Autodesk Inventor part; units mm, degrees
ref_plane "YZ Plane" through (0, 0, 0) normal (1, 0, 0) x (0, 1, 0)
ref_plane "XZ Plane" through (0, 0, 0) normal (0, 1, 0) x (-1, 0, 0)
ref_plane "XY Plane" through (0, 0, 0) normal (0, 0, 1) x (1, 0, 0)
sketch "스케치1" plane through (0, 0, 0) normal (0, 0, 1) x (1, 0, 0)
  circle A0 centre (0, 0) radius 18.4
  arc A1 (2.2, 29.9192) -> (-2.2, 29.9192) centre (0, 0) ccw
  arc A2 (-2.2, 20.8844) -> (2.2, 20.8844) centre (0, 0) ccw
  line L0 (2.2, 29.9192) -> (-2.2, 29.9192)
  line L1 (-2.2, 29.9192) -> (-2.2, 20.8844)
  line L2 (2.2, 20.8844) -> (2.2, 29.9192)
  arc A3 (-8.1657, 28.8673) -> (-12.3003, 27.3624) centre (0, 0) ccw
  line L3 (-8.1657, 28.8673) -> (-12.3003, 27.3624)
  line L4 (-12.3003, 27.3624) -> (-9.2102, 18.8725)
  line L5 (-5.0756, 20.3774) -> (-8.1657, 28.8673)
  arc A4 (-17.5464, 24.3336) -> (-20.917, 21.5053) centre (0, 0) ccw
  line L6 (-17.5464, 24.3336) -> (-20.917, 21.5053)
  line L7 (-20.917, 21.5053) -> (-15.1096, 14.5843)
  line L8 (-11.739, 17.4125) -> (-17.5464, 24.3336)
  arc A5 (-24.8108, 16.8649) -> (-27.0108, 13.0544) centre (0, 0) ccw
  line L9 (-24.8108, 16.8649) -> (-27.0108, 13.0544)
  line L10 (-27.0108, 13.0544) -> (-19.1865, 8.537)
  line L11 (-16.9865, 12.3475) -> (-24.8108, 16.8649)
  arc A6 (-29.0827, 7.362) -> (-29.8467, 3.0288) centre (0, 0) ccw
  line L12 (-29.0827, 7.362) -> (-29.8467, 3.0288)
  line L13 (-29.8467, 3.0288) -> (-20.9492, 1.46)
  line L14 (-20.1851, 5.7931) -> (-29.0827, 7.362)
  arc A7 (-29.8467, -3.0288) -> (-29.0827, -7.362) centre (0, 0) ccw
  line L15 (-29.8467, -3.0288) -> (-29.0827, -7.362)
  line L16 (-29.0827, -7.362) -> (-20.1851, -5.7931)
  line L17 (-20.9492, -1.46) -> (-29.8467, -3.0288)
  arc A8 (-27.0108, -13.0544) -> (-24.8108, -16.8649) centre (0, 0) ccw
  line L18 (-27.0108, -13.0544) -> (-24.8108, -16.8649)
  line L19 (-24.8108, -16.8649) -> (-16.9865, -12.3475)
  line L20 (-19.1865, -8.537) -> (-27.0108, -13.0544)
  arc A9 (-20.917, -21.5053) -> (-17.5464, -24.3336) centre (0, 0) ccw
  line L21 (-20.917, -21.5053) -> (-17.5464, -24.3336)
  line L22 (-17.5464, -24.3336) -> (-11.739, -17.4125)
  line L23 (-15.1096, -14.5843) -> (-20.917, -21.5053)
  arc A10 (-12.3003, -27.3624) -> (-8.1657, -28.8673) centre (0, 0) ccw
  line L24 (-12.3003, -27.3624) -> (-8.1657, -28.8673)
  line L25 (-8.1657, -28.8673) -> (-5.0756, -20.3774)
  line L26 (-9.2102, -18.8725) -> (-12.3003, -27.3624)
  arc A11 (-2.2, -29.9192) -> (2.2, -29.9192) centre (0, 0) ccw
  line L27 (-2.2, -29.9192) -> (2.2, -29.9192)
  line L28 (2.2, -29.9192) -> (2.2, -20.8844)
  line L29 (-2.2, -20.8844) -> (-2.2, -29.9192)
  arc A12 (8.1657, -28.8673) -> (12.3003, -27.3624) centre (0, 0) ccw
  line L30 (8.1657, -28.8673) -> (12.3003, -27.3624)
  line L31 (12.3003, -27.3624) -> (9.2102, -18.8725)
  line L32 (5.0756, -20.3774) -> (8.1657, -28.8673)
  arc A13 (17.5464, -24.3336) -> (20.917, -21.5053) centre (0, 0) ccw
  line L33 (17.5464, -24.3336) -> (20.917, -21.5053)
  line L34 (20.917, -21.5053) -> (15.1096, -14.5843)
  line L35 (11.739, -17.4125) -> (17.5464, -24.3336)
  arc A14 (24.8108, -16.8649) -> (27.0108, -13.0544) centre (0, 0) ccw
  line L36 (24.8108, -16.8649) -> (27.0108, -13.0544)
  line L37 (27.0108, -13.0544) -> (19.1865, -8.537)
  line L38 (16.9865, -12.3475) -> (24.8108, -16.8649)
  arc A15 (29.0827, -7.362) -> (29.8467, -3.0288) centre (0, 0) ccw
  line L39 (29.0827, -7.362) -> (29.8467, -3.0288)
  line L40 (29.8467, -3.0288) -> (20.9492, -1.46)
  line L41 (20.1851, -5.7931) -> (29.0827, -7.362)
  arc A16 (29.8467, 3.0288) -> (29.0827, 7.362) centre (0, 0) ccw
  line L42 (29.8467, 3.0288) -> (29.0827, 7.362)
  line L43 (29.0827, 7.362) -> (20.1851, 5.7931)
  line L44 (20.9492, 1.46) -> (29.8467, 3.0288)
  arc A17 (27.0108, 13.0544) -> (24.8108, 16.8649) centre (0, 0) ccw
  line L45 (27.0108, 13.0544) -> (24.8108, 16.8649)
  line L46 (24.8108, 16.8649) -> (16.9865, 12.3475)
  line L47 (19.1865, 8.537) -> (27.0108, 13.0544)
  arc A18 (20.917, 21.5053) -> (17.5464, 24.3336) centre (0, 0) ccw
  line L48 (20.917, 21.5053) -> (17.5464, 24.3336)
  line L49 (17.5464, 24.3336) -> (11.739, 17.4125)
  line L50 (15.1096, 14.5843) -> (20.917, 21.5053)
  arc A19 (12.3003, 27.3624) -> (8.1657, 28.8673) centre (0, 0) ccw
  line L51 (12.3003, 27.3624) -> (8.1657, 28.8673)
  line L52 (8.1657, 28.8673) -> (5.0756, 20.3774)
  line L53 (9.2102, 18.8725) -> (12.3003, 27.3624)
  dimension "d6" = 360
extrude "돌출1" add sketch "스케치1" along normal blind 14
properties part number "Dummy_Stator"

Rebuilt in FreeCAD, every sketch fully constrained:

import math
import FreeCAD as App
import Part
import Sketcher

V = App.Vector

doc = App.newDocument("Part")
body = doc.addObject("PartDesign::Body", "Body")

sketch1 = body.newObject("Sketcher::SketchObject", "Sketch")
sketch1.AttachmentSupport = (doc.getObject("XY_Plane"), [""])
sketch1.MapMode = "FlatFace"
sketch1.addGeometry([
    Part.ArcOfCircle(Part.Circle(V(0, 0, 0), V(0, 0, 1), 29.999975), math.radians(85.794531), math.radians(94.205469)),
    Part.LineSegment(V(-2.2, 29.9192, 0), V(-2.2, 20.8844, 0)),
    Part.ArcOfCircle(Part.Circle(V(0, 0, 0), V(0, 0, 1), 20.999956), math.radians(96.013462), math.radians(103.986614)),
    Part.LineSegment(V(-5.0756, 20.3774, 0), V(-8.1657, 28.8673, 0)),
    Part.ArcOfCircle(Part.Circle(V(-0.001287, 0.003984, 0), V(0, 0, 1), 29.995811), math.radians(105.794336), math.radians(114.206366)),
    Part.LineSegment(V(-12.3003, 27.3624, 0), V(-9.2102, 18.8725, 0)),
    Part.ArcOfCircle(Part.Circle(V(0, 0, 0), V(0, 0, 1), 20.999956), math.radians(116.013406), math.radians(123.986701)),
    Part.LineSegment(V(-11.739, 17.4125, 0), V(-17.5464, 24.3336, 0)),
    Part.ArcOfCircle(Part.Circle(V(-0.00271, 0.003482, 0), V(0, 0, 1), 29.995595), math.radians(125.794198), math.radians(134.206416)),
    Part.LineSegment(V(-20.917, 21.5053, 0), V(-15.1096, 14.5843, 0)),
    Part.ArcOfCircle(Part.Circle(V(0, 0, 0), V(0, 0, 1), 20.999956), math.radians(136.013485), math.radians(143.986568)),
    Part.LineSegment(V(-16.9865, 12.3475, 0), V(-24.8108, 16.8649, 0)),
    Part.ArcOfCircle(Part.Circle(V(0, 0, 0), V(0, 0, 1), 30.000041), math.radians(145.794475), math.radians(154.205384)),
    Part.LineSegment(V(-27.0108, 13.0544, 0), V(-19.1865, 8.537, 0)),
    Part.ArcOfCircle(Part.Circle(V(0, 0, 0), V(0, 0, 1), 20.999956), math.radians(156.01341), math.radians(163.986583)),
    Part.LineSegment(V(-20.1851, 5.7931, 0), V(-29.0827, 7.362, 0)),
    Part.ArcOfCircle(Part.Circle(V(-0.01015, 0.002176, 0), V(0, 0, 1), 29.989668), math.radians(165.793819), math.radians(174.207722)),
    Part.LineSegment(V(-29.8467, 3.0288, 0), V(-20.9492, 1.46, 0)),
    Part.ArcOfCircle(Part.Circle(V(0, 0, 0), V(0, 0, 1), 20.999956), math.radians(176.013366), math.radians(183.986634)),
    Part.LineSegment(V(-20.9492, -1.46, 0), V(-29.8467, -3.0288, 0)),
    Part.ArcOfCircle(Part.Circle(V(0.010289, 0.001427, 0), V(0, 0, 1), 30.010366), math.radians(-174.204815), math.radians(-165.796725)),
    Part.LineSegment(V(-29.0827, -7.362, 0), V(-20.1851, -5.7931, 0)),
    Part.ArcOfCircle(Part.Circle(V(0, 0, 0), V(0, 0, 1), 20.999956), math.radians(-163.986583), math.radians(-156.01341)),
    Part.LineSegment(V(-19.1865, -8.537, 0), V(-27.0108, -13.0544, 0)),
    Part.ArcOfCircle(Part.Circle(V(0, 0, 0), V(0, 0, 1), 29.999972), math.radians(-154.205384), math.radians(-145.794475)),
    Part.LineSegment(V(-24.8108, -16.8649, 0), V(-16.9865, -12.3475, 0)),
    Part.ArcOfCircle(Part.Circle(V(0, 0, 0), V(0, 0, 1), 20.999956), math.radians(-143.986568), math.radians(-136.013485)),
    Part.LineSegment(V(-15.1096, -14.5843, 0), V(-20.917, -21.5053, 0)),
    Part.ArcOfCircle(Part.Circle(V(0.002959, 0.003275, 0), V(0, 0, 1), 30.004391), math.radians(-134.205181), math.radians(-125.795433)),
    Part.LineSegment(V(-17.5464, -24.3336, 0), V(-11.739, -17.4125, 0)),
    Part.ArcOfCircle(Part.Circle(V(0, 0, 0), V(0, 0, 1), 20.999956), math.radians(-123.986701), math.radians(-116.013406)),
    Part.LineSegment(V(-9.2102, -18.8725, 0), V(-12.3003, -27.3624, 0)),
    Part.ArcOfCircle(Part.Circle(V(0.001576, 0.00388, 0), V(0, 0, 1), 30.004157), math.radians(-114.205194), math.radians(-105.795508)),
    Part.LineSegment(V(-8.1657, -28.8673, 0), V(-5.0756, -20.3774, 0)),
    Part.ArcOfCircle(Part.Circle(V(0, 0, 0), V(0, 0, 1), 20.999956), math.radians(-103.986614), math.radians(-96.013462)),
    Part.LineSegment(V(-2.2, -20.8844, 0), V(-2.2, -29.9192, 0)),
    Part.ArcOfCircle(Part.Circle(V(0, 0, 0), V(0, 0, 1), 29.999975), math.radians(-94.205469), math.radians(-85.794531)),
    Part.LineSegment(V(2.2, -29.9192, 0), V(2.2, -20.8844, 0)),
    Part.ArcOfCircle(Part.Circle(V(0, 0, 0), V(0, 0, 1), 20.999956), math.radians(-83.986538), math.radians(-76.013386)),
    Part.LineSegment(V(5.0756, -20.3774, 0), V(8.1657, -28.8673, 0)),
    Part.ArcOfCircle(Part.Circle(V(0.001287, -0.003984, 0), V(0, 0, 1), 29.995811), math.radians(-74.205664), math.radians(-65.793634)),
    Part.LineSegment(V(12.3003, -27.3624, 0), V(9.2102, -18.8725, 0)),
    Part.ArcOfCircle(Part.Circle(V(0, 0, 0), V(0, 0, 1), 20.999956), math.radians(-63.986594), math.radians(-56.013299)),
    Part.LineSegment(V(11.739, -17.4125, 0), V(17.5464, -24.3336, 0)),
    Part.ArcOfCircle(Part.Circle(V(0.00271, -0.003482, 0), V(0, 0, 1), 29.995595), math.radians(-54.205802), math.radians(-45.793584)),
    Part.LineSegment(V(20.917, -21.5053, 0), V(15.1096, -14.5843, 0)),
    Part.ArcOfCircle(Part.Circle(V(0, 0, 0), V(0, 0, 1), 20.999956), math.radians(-43.986515), math.radians(-36.013432)),
    Part.LineSegment(V(16.9865, -12.3475, 0), V(24.8108, -16.8649, 0)),
    Part.ArcOfCircle(Part.Circle(V(0, 0, 0), V(0, 0, 1), 30.000041), math.radians(-34.205525), math.radians(-25.794616)),
    Part.LineSegment(V(27.0108, -13.0544, 0), V(19.1865, -8.537, 0)),
    Part.ArcOfCircle(Part.Circle(V(0, 0, 0), V(0, 0, 1), 20.999956), math.radians(-23.98659), math.radians(-16.013417)),
    Part.LineSegment(V(20.1851, -5.7931, 0), V(29.0827, -7.362, 0)),
    Part.ArcOfCircle(Part.Circle(V(0.01015, -0.002176, 0), V(0, 0, 1), 29.989668), math.radians(-14.206181), math.radians(-5.792278)),
    Part.LineSegment(V(29.8467, -3.0288, 0), V(20.9492, -1.46, 0)),
    Part.ArcOfCircle(Part.Circle(V(0, 0, 0), V(0, 0, 1), 20.999956), math.radians(-3.986634), math.radians(3.986634)),
    Part.LineSegment(V(20.9492, 1.46, 0), V(29.8467, 3.0288, 0)),
    Part.ArcOfCircle(Part.Circle(V(-0.010289, -0.001427, 0), V(0, 0, 1), 30.010366), math.radians(5.795185), math.radians(14.203275)),
    Part.LineSegment(V(29.0827, 7.362, 0), V(20.1851, 5.7931, 0)),
    Part.ArcOfCircle(Part.Circle(V(0, 0, 0), V(0, 0, 1), 20.999956), math.radians(16.013417), math.radians(23.98659)),
    Part.LineSegment(V(19.1865, 8.537, 0), V(27.0108, 13.0544, 0)),
    Part.ArcOfCircle(Part.Circle(V(0, 0, 0), V(0, 0, 1), 29.999972), math.radians(25.794616), math.radians(34.205525)),
    Part.LineSegment(V(24.8108, 16.8649, 0), V(16.9865, 12.3475, 0)),
    Part.ArcOfCircle(Part.Circle(V(0, 0, 0), V(0, 0, 1), 20.999956), math.radians(36.013432), math.radians(43.986515)),
    Part.LineSegment(V(15.1096, 14.5843, 0), V(20.917, 21.5053, 0)),
    Part.ArcOfCircle(Part.Circle(V(-0.002959, -0.003275, 0), V(0, 0, 1), 30.004391), math.radians(45.794819), math.radians(54.204567)),
    Part.LineSegment(V(17.5464, 24.3336, 0), V(11.739, 17.4125, 0)),
    Part.ArcOfCircle(Part.Circle(V(0, 0, 0), V(0, 0, 1), 20.999956), math.radians(56.013299), math.radians(63.986594)),
    Part.LineSegment(V(9.2102, 18.8725, 0), V(12.3003, 27.3624, 0)),
    Part.ArcOfCircle(Part.Circle(V(-0.001576, -0.00388, 0), V(0, 0, 1), 30.004157), math.radians(65.794806), math.radians(74.204492)),
    Part.LineSegment(V(8.1657, 28.8673, 0), V(5.0756, 20.3774, 0)),
    Part.ArcOfCircle(Part.Circle(V(0, 0, 0), V(0, 0, 1), 20.999956), math.radians(76.013386), math.radians(83.986538)),
    Part.LineSegment(V(2.2, 20.8844, 0), V(2.2, 29.9192, 0)),
    Part.Circle(V(0, 0, 0), V(0, 0, 1), 18.4),
], False)
sketch1.addConstraint([
    Sketcher.Constraint("Coincident", 0, 2, 1, 1),
    Sketcher.Constraint("Coincident", 1, 2, 2, 1),
    Sketcher.Constraint("Coincident", 2, 2, 3, 1),
    Sketcher.Constraint("Coincident", 3, 2, 4, 1),
    Sketcher.Constraint("Coincident", 4, 2, 5, 1),
    Sketcher.Constraint("Coincident", 5, 2, 6, 1),
    Sketcher.Constraint("Coincident", 6, 2, 7, 1),
    Sketcher.Constraint("Coincident", 7, 2, 8, 1),
    Sketcher.Constraint("Coincident", 8, 2, 9, 1),
    Sketcher.Constraint("Coincident", 9, 2, 10, 1),
    Sketcher.Constraint("Coincident", 10, 2, 11, 1),
    Sketcher.Constraint("Coincident", 11, 2, 12, 1),
    Sketcher.Constraint("Coincident", 12, 2, 13, 1),
    Sketcher.Constraint("Coincident", 13, 2, 14, 1),
    Sketcher.Constraint("Coincident", 14, 2, 15, 1),
    Sketcher.Constraint("Coincident", 15, 2, 16, 1),
    Sketcher.Constraint("Coincident", 16, 2, 17, 1),
    Sketcher.Constraint("Coincident", 17, 2, 18, 1),
    Sketcher.Constraint("Coincident", 18, 2, 19, 1),
    Sketcher.Constraint("Coincident", 19, 2, 20, 1),
    Sketcher.Constraint("Coincident", 20, 2, 21, 1),
    Sketcher.Constraint("Coincident", 21, 2, 22, 1),
    Sketcher.Constraint("Coincident", 22, 2, 23, 1),
    Sketcher.Constraint("Coincident", 23, 2, 24, 1),
    Sketcher.Constraint("Coincident", 24, 2, 25, 1),
    Sketcher.Constraint("Coincident", 25, 2, 26, 1),
    Sketcher.Constraint("Coincident", 26, 2, 27, 1),
    Sketcher.Constraint("Coincident", 27, 2, 28, 1),
    Sketcher.Constraint("Coincident", 28, 2, 29, 1),
    Sketcher.Constraint("Coincident", 29, 2, 30, 1),
    Sketcher.Constraint("Coincident", 30, 2, 31, 1),
    Sketcher.Constraint("Coincident", 31, 2, 32, 1),
    Sketcher.Constraint("Coincident", 32, 2, 33, 1),
    Sketcher.Constraint("Coincident", 33, 2, 34, 1),
    Sketcher.Constraint("Coincident", 34, 2, 35, 1),
    Sketcher.Constraint("Coincident", 35, 2, 36, 1),
    Sketcher.Constraint("Coincident", 36, 2, 37, 1),
    Sketcher.Constraint("Coincident", 37, 2, 38, 1),
    Sketcher.Constraint("Coincident", 38, 2, 39, 1),
    Sketcher.Constraint("Coincident", 39, 2, 40, 1),
    Sketcher.Constraint("Coincident", 40, 2, 41, 1),
    Sketcher.Constraint("Coincident", 41, 2, 42, 1),
    Sketcher.Constraint("Coincident", 42, 2, 43, 1),
    Sketcher.Constraint("Coincident", 43, 2, 44, 1),
    Sketcher.Constraint("Coincident", 44, 2, 45, 1),
    Sketcher.Constraint("Coincident", 45, 2, 46, 1),
    Sketcher.Constraint("Coincident", 46, 2, 47, 1),
    Sketcher.Constraint("Coincident", 47, 2, 48, 1),
    Sketcher.Constraint("Coincident", 48, 2, 49, 1),
    Sketcher.Constraint("Coincident", 49, 2, 50, 1),
    Sketcher.Constraint("Coincident", 50, 2, 51, 1),
    Sketcher.Constraint("Coincident", 51, 2, 52, 1),
    Sketcher.Constraint("Coincident", 52, 2, 53, 1),
    Sketcher.Constraint("Coincident", 53, 2, 54, 1),
    Sketcher.Constraint("Coincident", 54, 2, 55, 1),
    Sketcher.Constraint("Coincident", 55, 2, 56, 1),
    Sketcher.Constraint("Coincident", 56, 2, 57, 1),
    Sketcher.Constraint("Coincident", 57, 2, 58, 1),
    Sketcher.Constraint("Coincident", 58, 2, 59, 1),
    Sketcher.Constraint("Coincident", 59, 2, 60, 1),
    Sketcher.Constraint("Coincident", 60, 2, 61, 1),
    Sketcher.Constraint("Coincident", 61, 2, 62, 1),
    Sketcher.Constraint("Coincident", 62, 2, 63, 1),
    Sketcher.Constraint("Coincident", 63, 2, 64, 1),
    Sketcher.Constraint("Coincident", 64, 2, 65, 1),
    Sketcher.Constraint("Coincident", 65, 2, 66, 1),
    Sketcher.Constraint("Coincident", 66, 2, 67, 1),
    Sketcher.Constraint("Coincident", 67, 2, 68, 1),
    Sketcher.Constraint("Coincident", 68, 2, 69, 1),
    Sketcher.Constraint("Coincident", 69, 2, 70, 1),
    Sketcher.Constraint("Coincident", 70, 2, 71, 1),
    Sketcher.Constraint("Coincident", 71, 2, 0, 1),
    Sketcher.Constraint("Vertical", 1),
    Sketcher.Constraint("Vertical", 35),
    Sketcher.Constraint("Vertical", 37),
    Sketcher.Constraint("Vertical", 71),
    Sketcher.Constraint("Coincident", 0, 3, -1, 1),
    Sketcher.Constraint("Coincident", 2, 3, -1, 1),
    Sketcher.Constraint("Coincident", 6, 3, -1, 1),
    Sketcher.Constraint("Coincident", 10, 3, -1, 1),
    Sketcher.Constraint("Coincident", 12, 3, -1, 1),
    Sketcher.Constraint("Coincident", 14, 3, -1, 1),
    Sketcher.Constraint("Coincident", 18, 3, -1, 1),
    Sketcher.Constraint("Coincident", 22, 3, -1, 1),
    Sketcher.Constraint("Coincident", 24, 3, -1, 1),
    Sketcher.Constraint("Coincident", 26, 3, -1, 1),
    Sketcher.Constraint("Coincident", 30, 3, -1, 1),
    Sketcher.Constraint("Coincident", 34, 3, -1, 1),
    Sketcher.Constraint("Coincident", 36, 3, -1, 1),
    Sketcher.Constraint("Coincident", 38, 3, -1, 1),
    Sketcher.Constraint("Coincident", 42, 3, -1, 1),
    Sketcher.Constraint("Coincident", 46, 3, -1, 1),
    Sketcher.Constraint("Coincident", 48, 3, -1, 1),
    Sketcher.Constraint("Coincident", 50, 3, -1, 1),
    Sketcher.Constraint("Coincident", 54, 3, -1, 1),
    Sketcher.Constraint("Coincident", 58, 3, -1, 1),
    Sketcher.Constraint("Coincident", 60, 3, -1, 1),
    Sketcher.Constraint("Coincident", 62, 3, -1, 1),
    Sketcher.Constraint("Coincident", 66, 3, -1, 1),
    Sketcher.Constraint("Coincident", 70, 3, -1, 1),
    Sketcher.Constraint("Coincident", 72, 3, -1, 1),
    Sketcher.Constraint("Radius", 0, 30.0),
    Sketcher.Constraint("Radius", 2, 21.0),
    Sketcher.Constraint("Radius", 6, 21.0),
    Sketcher.Constraint("Radius", 10, 21.0),
    Sketcher.Constraint("Radius", 12, 30.0),
    Sketcher.Constraint("Radius", 14, 21.0),
    Sketcher.Constraint("Radius", 18, 21.0),
    Sketcher.Constraint("Radius", 22, 21.0),
    Sketcher.Constraint("Radius", 24, 30.0),
    Sketcher.Constraint("Radius", 26, 21.0),
    Sketcher.Constraint("Radius", 30, 21.0),
    Sketcher.Constraint("Radius", 34, 21.0),
    Sketcher.Constraint("Radius", 36, 30.0),
    Sketcher.Constraint("Radius", 38, 21.0),
    Sketcher.Constraint("Radius", 42, 21.0),
    Sketcher.Constraint("Radius", 46, 21.0),
    Sketcher.Constraint("Radius", 48, 30.0),
    Sketcher.Constraint("Radius", 50, 21.0),
    Sketcher.Constraint("Radius", 54, 21.0),
    Sketcher.Constraint("Radius", 58, 21.0),
    Sketcher.Constraint("Radius", 60, 30.0),
    Sketcher.Constraint("Radius", 62, 21.0),
    Sketcher.Constraint("Radius", 66, 21.0),
    Sketcher.Constraint("Radius", 70, 21.0),
    Sketcher.Constraint("Diameter", 72, 36.8),
    Sketcher.Constraint("DistanceX", 0, 2, -1, 1, 2.2),
    Sketcher.Constraint("DistanceX", 34, 2, -1, 1, 2.2),
    Sketcher.Constraint("DistanceX", -1, 1, 36, 2, 2.2),
    Sketcher.Constraint("DistanceX", -1, 1, 70, 2, 2.2),
    Sketcher.Constraint("Radius", 4, 29.9958),
    Sketcher.Constraint("Radius", 8, 29.9956),
    Sketcher.Constraint("Radius", 16, 29.9897),
    Sketcher.Constraint("Radius", 20, 30.0104),
    Sketcher.Constraint("Radius", 28, 30.0044),
    Sketcher.Constraint("Radius", 32, 30.0042),
    Sketcher.Constraint("Radius", 40, 29.9958),
    Sketcher.Constraint("Radius", 44, 29.9956),
    Sketcher.Constraint("Radius", 52, 29.9897),
    Sketcher.Constraint("Radius", 56, 30.0104),
    Sketcher.Constraint("Radius", 64, 30.0044),
    Sketcher.Constraint("Radius", 68, 30.0042),
    Sketcher.Constraint("DistanceY", -1, 1, 17, 2, 1.46),
    Sketcher.Constraint("DistanceY", 18, 2, -1, 1, 1.46),
    Sketcher.Constraint("DistanceY", 53, 2, -1, 1, 1.46),
    Sketcher.Constraint("DistanceY", -1, 1, 54, 2, 1.46),
    Sketcher.Constraint("DistanceY", -1, 1, 4, 3, 0.004),
    Sketcher.Constraint("DistanceX", -1, 1, 28, 3, 0.003),
    Sketcher.Constraint("DistanceY", 40, 3, -1, 1, 0.004),
    Sketcher.Constraint("DistanceX", 64, 3, -1, 1, 0.003),
    Sketcher.Constraint("DistanceX", 6, 2, -1, 1, 11.739),
    Sketcher.Constraint("DistanceX", 8, 2, -1, 1, 20.917),
    Sketcher.Constraint("DistanceY", -1, 1, 11, 2, 16.865),
    Sketcher.Constraint("DistanceY", -1, 1, 13, 2, 8.537),
    Sketcher.Constraint("DistanceX", 14, 2, -1, 1, 20.185),
    Sketcher.Constraint("DistanceY", -1, 1, 15, 2, 7.362),
    Sketcher.Constraint("DistanceY", 20, 2, -1, 1, 7.362),
    Sketcher.Constraint("DistanceX", 21, 2, -1, 1, 20.185),
    Sketcher.Constraint("DistanceY", 22, 2, -1, 1, 8.537),
    Sketcher.Constraint("DistanceX", 27, 2, -1, 1, 20.917),
    Sketcher.Constraint("DistanceX", 29, 2, -1, 1, 11.739),
    Sketcher.Constraint("DistanceX", -1, 1, 42, 2, 11.739),
    Sketcher.Constraint("DistanceX", -1, 1, 44, 2, 20.917),
    Sketcher.Constraint("DistanceY", 47, 2, -1, 1, 16.865),
    Sketcher.Constraint("DistanceY", 49, 2, -1, 1, 8.537),
    Sketcher.Constraint("DistanceX", -1, 1, 50, 2, 20.185),
    Sketcher.Constraint("DistanceY", 51, 2, -1, 1, 7.362),
    Sketcher.Constraint("DistanceY", -1, 1, 56, 2, 7.362),
    Sketcher.Constraint("DistanceX", -1, 1, 57, 2, 20.185),
    Sketcher.Constraint("DistanceY", -1, 1, 58, 2, 8.537),
    Sketcher.Constraint("DistanceX", -1, 1, 63, 2, 20.917),
    Sketcher.Constraint("DistanceX", -1, 1, 65, 2, 11.739),
    Sketcher.Constraint("Distance", 3, 9.0348),
    Sketcher.Constraint("Distance", 5, 9.0348),
    Sketcher.Constraint("Distance", 7, 9.0348),
    Sketcher.Constraint("Distance", 9, 9.0347),
    Sketcher.Constraint("Distance", 11, 9.0347),
    Sketcher.Constraint("Distance", 13, 9.0347),
    Sketcher.Constraint("Distance", 15, 9.0349),
    Sketcher.Constraint("Distance", 17, 9.0347),
    Sketcher.Constraint("Distance", 19, 9.0347),
    Sketcher.Constraint("Distance", 21, 9.0349),
    Sketcher.Constraint("Distance", 23, 9.0347),
    Sketcher.Constraint("Distance", 25, 9.0347),
    Sketcher.Constraint("Distance", 27, 9.0347),
    Sketcher.Constraint("Distance", 29, 9.0348),
    Sketcher.Constraint("Distance", 31, 9.0348),
    Sketcher.Constraint("Distance", 33, 9.0348),
    Sketcher.Constraint("Distance", 39, 9.0348),
    Sketcher.Constraint("Distance", 41, 9.0348),
    Sketcher.Constraint("Distance", 43, 9.0348),
    Sketcher.Constraint("Distance", 45, 9.0347),
    Sketcher.Constraint("Distance", 47, 9.0347),
    Sketcher.Constraint("Distance", 49, 9.0347),
    Sketcher.Constraint("Distance", 51, 9.0349),
    Sketcher.Constraint("Distance", 53, 9.0347),
    Sketcher.Constraint("Distance", 55, 9.0347),
    Sketcher.Constraint("Distance", 57, 9.0349),
    Sketcher.Constraint("Distance", 59, 9.0347),
    Sketcher.Constraint("Distance", 61, 9.0347),
    Sketcher.Constraint("Distance", 63, 9.0347),
    Sketcher.Constraint("Distance", 65, 9.0348),
    Sketcher.Constraint("Distance", 67, 9.0348),
    Sketcher.Constraint("Distance", 69, 9.0348),
    Sketcher.Constraint("DistanceX", 4, 3, -1, 1, 0.0013),
    Sketcher.Constraint("DistanceX", 8, 3, -1, 1, 0.0027),
    Sketcher.Constraint("DistanceY", -1, 1, 8, 3, 0.0035),
    Sketcher.Constraint("DistanceX", 16, 3, -1, 1, 0.0101),
    Sketcher.Constraint("DistanceX", -1, 1, 20, 3, 0.0103),
    Sketcher.Constraint("DistanceY", -1, 1, 28, 3, 0.0033),
    Sketcher.Constraint("DistanceX", -1, 1, 32, 3, 0.0016),
    Sketcher.Constraint("DistanceY", -1, 1, 32, 3, 0.0039),
    Sketcher.Constraint("DistanceX", -1, 1, 40, 3, 0.0013),
    Sketcher.Constraint("DistanceX", -1, 1, 44, 3, 0.0027),
    Sketcher.Constraint("DistanceY", 44, 3, -1, 1, 0.0035),
    Sketcher.Constraint("DistanceX", -1, 1, 52, 3, 0.0101),
    Sketcher.Constraint("DistanceX", 56, 3, -1, 1, 0.0103),
    Sketcher.Constraint("DistanceY", 64, 3, -1, 1, 0.0033),
    Sketcher.Constraint("DistanceX", 68, 3, -1, 1, 0.0016),
    Sketcher.Constraint("DistanceY", 68, 3, -1, 1, 0.0039),
    Sketcher.Constraint("DistanceX", 2, 2, -1, 1, 5.0756),
    Sketcher.Constraint("DistanceX", 4, 2, -1, 1, 12.3003),
    Sketcher.Constraint("DistanceX", 24, 2, -1, 1, 24.8108),
    Sketcher.Constraint("DistanceX", 30, 2, -1, 1, 9.2102),
    Sketcher.Constraint("DistanceX", 32, 2, -1, 1, 8.1657),
    Sketcher.Constraint("DistanceX", -1, 1, 38, 2, 5.0756),
    Sketcher.Constraint("DistanceX", -1, 1, 40, 2, 12.3003),
    Sketcher.Constraint("DistanceX", -1, 1, 60, 2, 24.8108),
    Sketcher.Constraint("DistanceX", -1, 1, 66, 2, 9.2102),
    Sketcher.Constraint("DistanceX", -1, 1, 68, 2, 8.1657),
])
pad1 = body.newObject("PartDesign::Pad", "Pad")
pad1.Profile = sketch1
pad1.Length = 14

doc.recompute()
